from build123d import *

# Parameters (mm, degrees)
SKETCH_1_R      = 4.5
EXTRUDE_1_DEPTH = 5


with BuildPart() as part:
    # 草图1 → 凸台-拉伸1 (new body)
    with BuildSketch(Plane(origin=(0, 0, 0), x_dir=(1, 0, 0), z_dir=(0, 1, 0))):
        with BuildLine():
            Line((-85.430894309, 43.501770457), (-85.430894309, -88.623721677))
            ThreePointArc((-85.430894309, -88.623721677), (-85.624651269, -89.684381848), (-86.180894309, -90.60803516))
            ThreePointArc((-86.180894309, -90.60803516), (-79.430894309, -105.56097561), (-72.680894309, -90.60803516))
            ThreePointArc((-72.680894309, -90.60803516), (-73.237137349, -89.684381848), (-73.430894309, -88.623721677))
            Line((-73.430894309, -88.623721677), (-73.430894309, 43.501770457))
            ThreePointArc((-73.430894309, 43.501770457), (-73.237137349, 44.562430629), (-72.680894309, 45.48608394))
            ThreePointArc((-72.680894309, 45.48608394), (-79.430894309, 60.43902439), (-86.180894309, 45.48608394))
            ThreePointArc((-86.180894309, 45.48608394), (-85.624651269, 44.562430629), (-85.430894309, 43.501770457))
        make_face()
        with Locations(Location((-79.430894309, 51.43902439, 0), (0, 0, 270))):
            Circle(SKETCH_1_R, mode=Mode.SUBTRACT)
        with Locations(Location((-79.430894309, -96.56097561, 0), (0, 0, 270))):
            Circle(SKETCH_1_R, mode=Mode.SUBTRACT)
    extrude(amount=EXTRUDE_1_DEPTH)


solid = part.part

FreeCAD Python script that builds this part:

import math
import FreeCAD as App
import Part
import Sketcher

V = App.Vector
Q = App.Units.Quantity

doc = App.newDocument("Part")
body = doc.addObject("PartDesign::Body", "Body")

sketch1 = doc.addObject("Sketcher::SketchObject", "Sketch")
body.addObject(sketch1)
sketch1.AttachmentSupport = (doc.XZ_Plane, [""])
sketch1.MapMode = "FlatFace"
sketch1.addGeometry([
    Part.LineSegment(V(-85.430894, -43.50177, 0), V(-85.430894, 88.623722, 0)),
    Part.ArcOfCircle(Part.Circle(V(-88.430894, 88.623722, 0), V(0, 0, 1), 3), math.radians(0), math.radians(41.409622)),
    Part.ArcOfCircle(Part.Circle(V(-79.430894, 96.560976, 0), V(0, 0, 1), 9), math.radians(-41.409622), math.radians(221.409622)),
    Part.ArcOfCircle(Part.Circle(V(-70.430894, 88.623722, 0), V(0, 0, 1), 3), math.radians(138.590378), math.radians(180)),
    Part.LineSegment(V(-73.430894, 88.623722, 0), V(-73.430894, -43.50177, 0)),
    Part.ArcOfCircle(Part.Circle(V(-70.430894, -43.50177, 0), V(0, 0, 1), 3), math.radians(180), math.radians(221.409622)),
    Part.ArcOfCircle(Part.Circle(V(-79.430894, -51.439024, 0), V(0, 0, 1), 9), math.radians(138.590378), math.radians(401.409622)),
    Part.ArcOfCircle(Part.Circle(V(-88.430894, -43.50177, 0), V(0, 0, 1), 3), math.radians(-41.409622), math.radians(0)),
    Part.Circle(V(-79.430894, 96.560976, 0), V(0, 0, 1), 4.5),
    Part.Circle(V(-79.430894, -51.439024, 0), V(0, 0, 1), 4.5),
], False)
sketch1.addConstraint([
    Sketcher.Constraint("Tangent", 0, 2, 1, 1),
    Sketcher.Constraint("Tangent", 1, 2, 2, 2),
    Sketcher.Constraint("Tangent", 2, 1, 3, 1),
    Sketcher.Constraint("Tangent", 3, 2, 4, 1),
    Sketcher.Constraint("Tangent", 4, 2, 5, 1),
    Sketcher.Constraint("Tangent", 5, 2, 6, 2),
    Sketcher.Constraint("Tangent", 6, 1, 7, 1),
    Sketcher.Constraint("Tangent", 7, 2, 0, 1),
    Sketcher.Constraint("Vertical", 0),
    Sketcher.Constraint("Vertical", 4),
    Sketcher.Constraint("Coincident", 8, 3, 2, 3),
    Sketcher.Constraint("Coincident", 9, 3, 6, 3),
    Sketcher.Constraint("Equal", 1, 3),
    Sketcher.Constraint("Equal", 3, 5),
    Sketcher.Constraint("Equal", 2, 6),
    Sketcher.Constraint("Equal", 5, 7),
    Sketcher.Constraint("Equal", 8, 9),
    Sketcher.Constraint("Horizontal", 1, 3, 3, 3),
    Sketcher.Constraint("Horizontal", 5, 3, 7, 3),
    Sketcher.Constraint("Diameter", 8, Q("9 mm")),
    Sketcher.Constraint("Radius", 1, Q("3 mm")),
    Sketcher.Constraint("Radius", 2, Q("9 mm")),
    Sketcher.Constraint("DistanceX", 1, 3, 2, 3, Q("9 mm")),
    Sketcher.Constraint("DistanceY", 6, 3, 2, 3, Q("148 mm")),
    Sketcher.Constraint("DistanceY", -1, 1, 1, 3, Q("88.623722 mm")),
    Sketcher.Constraint("DistanceX", 1, 3, -1, 1, Q("88.430894 mm")),
])
pad1 = doc.addObject("PartDesign::Pad", "Pad")
body.addObject(pad1)
pad1.Profile = sketch1
pad1.Length = 5
pad1.Reversed = True

doc.recompute()
